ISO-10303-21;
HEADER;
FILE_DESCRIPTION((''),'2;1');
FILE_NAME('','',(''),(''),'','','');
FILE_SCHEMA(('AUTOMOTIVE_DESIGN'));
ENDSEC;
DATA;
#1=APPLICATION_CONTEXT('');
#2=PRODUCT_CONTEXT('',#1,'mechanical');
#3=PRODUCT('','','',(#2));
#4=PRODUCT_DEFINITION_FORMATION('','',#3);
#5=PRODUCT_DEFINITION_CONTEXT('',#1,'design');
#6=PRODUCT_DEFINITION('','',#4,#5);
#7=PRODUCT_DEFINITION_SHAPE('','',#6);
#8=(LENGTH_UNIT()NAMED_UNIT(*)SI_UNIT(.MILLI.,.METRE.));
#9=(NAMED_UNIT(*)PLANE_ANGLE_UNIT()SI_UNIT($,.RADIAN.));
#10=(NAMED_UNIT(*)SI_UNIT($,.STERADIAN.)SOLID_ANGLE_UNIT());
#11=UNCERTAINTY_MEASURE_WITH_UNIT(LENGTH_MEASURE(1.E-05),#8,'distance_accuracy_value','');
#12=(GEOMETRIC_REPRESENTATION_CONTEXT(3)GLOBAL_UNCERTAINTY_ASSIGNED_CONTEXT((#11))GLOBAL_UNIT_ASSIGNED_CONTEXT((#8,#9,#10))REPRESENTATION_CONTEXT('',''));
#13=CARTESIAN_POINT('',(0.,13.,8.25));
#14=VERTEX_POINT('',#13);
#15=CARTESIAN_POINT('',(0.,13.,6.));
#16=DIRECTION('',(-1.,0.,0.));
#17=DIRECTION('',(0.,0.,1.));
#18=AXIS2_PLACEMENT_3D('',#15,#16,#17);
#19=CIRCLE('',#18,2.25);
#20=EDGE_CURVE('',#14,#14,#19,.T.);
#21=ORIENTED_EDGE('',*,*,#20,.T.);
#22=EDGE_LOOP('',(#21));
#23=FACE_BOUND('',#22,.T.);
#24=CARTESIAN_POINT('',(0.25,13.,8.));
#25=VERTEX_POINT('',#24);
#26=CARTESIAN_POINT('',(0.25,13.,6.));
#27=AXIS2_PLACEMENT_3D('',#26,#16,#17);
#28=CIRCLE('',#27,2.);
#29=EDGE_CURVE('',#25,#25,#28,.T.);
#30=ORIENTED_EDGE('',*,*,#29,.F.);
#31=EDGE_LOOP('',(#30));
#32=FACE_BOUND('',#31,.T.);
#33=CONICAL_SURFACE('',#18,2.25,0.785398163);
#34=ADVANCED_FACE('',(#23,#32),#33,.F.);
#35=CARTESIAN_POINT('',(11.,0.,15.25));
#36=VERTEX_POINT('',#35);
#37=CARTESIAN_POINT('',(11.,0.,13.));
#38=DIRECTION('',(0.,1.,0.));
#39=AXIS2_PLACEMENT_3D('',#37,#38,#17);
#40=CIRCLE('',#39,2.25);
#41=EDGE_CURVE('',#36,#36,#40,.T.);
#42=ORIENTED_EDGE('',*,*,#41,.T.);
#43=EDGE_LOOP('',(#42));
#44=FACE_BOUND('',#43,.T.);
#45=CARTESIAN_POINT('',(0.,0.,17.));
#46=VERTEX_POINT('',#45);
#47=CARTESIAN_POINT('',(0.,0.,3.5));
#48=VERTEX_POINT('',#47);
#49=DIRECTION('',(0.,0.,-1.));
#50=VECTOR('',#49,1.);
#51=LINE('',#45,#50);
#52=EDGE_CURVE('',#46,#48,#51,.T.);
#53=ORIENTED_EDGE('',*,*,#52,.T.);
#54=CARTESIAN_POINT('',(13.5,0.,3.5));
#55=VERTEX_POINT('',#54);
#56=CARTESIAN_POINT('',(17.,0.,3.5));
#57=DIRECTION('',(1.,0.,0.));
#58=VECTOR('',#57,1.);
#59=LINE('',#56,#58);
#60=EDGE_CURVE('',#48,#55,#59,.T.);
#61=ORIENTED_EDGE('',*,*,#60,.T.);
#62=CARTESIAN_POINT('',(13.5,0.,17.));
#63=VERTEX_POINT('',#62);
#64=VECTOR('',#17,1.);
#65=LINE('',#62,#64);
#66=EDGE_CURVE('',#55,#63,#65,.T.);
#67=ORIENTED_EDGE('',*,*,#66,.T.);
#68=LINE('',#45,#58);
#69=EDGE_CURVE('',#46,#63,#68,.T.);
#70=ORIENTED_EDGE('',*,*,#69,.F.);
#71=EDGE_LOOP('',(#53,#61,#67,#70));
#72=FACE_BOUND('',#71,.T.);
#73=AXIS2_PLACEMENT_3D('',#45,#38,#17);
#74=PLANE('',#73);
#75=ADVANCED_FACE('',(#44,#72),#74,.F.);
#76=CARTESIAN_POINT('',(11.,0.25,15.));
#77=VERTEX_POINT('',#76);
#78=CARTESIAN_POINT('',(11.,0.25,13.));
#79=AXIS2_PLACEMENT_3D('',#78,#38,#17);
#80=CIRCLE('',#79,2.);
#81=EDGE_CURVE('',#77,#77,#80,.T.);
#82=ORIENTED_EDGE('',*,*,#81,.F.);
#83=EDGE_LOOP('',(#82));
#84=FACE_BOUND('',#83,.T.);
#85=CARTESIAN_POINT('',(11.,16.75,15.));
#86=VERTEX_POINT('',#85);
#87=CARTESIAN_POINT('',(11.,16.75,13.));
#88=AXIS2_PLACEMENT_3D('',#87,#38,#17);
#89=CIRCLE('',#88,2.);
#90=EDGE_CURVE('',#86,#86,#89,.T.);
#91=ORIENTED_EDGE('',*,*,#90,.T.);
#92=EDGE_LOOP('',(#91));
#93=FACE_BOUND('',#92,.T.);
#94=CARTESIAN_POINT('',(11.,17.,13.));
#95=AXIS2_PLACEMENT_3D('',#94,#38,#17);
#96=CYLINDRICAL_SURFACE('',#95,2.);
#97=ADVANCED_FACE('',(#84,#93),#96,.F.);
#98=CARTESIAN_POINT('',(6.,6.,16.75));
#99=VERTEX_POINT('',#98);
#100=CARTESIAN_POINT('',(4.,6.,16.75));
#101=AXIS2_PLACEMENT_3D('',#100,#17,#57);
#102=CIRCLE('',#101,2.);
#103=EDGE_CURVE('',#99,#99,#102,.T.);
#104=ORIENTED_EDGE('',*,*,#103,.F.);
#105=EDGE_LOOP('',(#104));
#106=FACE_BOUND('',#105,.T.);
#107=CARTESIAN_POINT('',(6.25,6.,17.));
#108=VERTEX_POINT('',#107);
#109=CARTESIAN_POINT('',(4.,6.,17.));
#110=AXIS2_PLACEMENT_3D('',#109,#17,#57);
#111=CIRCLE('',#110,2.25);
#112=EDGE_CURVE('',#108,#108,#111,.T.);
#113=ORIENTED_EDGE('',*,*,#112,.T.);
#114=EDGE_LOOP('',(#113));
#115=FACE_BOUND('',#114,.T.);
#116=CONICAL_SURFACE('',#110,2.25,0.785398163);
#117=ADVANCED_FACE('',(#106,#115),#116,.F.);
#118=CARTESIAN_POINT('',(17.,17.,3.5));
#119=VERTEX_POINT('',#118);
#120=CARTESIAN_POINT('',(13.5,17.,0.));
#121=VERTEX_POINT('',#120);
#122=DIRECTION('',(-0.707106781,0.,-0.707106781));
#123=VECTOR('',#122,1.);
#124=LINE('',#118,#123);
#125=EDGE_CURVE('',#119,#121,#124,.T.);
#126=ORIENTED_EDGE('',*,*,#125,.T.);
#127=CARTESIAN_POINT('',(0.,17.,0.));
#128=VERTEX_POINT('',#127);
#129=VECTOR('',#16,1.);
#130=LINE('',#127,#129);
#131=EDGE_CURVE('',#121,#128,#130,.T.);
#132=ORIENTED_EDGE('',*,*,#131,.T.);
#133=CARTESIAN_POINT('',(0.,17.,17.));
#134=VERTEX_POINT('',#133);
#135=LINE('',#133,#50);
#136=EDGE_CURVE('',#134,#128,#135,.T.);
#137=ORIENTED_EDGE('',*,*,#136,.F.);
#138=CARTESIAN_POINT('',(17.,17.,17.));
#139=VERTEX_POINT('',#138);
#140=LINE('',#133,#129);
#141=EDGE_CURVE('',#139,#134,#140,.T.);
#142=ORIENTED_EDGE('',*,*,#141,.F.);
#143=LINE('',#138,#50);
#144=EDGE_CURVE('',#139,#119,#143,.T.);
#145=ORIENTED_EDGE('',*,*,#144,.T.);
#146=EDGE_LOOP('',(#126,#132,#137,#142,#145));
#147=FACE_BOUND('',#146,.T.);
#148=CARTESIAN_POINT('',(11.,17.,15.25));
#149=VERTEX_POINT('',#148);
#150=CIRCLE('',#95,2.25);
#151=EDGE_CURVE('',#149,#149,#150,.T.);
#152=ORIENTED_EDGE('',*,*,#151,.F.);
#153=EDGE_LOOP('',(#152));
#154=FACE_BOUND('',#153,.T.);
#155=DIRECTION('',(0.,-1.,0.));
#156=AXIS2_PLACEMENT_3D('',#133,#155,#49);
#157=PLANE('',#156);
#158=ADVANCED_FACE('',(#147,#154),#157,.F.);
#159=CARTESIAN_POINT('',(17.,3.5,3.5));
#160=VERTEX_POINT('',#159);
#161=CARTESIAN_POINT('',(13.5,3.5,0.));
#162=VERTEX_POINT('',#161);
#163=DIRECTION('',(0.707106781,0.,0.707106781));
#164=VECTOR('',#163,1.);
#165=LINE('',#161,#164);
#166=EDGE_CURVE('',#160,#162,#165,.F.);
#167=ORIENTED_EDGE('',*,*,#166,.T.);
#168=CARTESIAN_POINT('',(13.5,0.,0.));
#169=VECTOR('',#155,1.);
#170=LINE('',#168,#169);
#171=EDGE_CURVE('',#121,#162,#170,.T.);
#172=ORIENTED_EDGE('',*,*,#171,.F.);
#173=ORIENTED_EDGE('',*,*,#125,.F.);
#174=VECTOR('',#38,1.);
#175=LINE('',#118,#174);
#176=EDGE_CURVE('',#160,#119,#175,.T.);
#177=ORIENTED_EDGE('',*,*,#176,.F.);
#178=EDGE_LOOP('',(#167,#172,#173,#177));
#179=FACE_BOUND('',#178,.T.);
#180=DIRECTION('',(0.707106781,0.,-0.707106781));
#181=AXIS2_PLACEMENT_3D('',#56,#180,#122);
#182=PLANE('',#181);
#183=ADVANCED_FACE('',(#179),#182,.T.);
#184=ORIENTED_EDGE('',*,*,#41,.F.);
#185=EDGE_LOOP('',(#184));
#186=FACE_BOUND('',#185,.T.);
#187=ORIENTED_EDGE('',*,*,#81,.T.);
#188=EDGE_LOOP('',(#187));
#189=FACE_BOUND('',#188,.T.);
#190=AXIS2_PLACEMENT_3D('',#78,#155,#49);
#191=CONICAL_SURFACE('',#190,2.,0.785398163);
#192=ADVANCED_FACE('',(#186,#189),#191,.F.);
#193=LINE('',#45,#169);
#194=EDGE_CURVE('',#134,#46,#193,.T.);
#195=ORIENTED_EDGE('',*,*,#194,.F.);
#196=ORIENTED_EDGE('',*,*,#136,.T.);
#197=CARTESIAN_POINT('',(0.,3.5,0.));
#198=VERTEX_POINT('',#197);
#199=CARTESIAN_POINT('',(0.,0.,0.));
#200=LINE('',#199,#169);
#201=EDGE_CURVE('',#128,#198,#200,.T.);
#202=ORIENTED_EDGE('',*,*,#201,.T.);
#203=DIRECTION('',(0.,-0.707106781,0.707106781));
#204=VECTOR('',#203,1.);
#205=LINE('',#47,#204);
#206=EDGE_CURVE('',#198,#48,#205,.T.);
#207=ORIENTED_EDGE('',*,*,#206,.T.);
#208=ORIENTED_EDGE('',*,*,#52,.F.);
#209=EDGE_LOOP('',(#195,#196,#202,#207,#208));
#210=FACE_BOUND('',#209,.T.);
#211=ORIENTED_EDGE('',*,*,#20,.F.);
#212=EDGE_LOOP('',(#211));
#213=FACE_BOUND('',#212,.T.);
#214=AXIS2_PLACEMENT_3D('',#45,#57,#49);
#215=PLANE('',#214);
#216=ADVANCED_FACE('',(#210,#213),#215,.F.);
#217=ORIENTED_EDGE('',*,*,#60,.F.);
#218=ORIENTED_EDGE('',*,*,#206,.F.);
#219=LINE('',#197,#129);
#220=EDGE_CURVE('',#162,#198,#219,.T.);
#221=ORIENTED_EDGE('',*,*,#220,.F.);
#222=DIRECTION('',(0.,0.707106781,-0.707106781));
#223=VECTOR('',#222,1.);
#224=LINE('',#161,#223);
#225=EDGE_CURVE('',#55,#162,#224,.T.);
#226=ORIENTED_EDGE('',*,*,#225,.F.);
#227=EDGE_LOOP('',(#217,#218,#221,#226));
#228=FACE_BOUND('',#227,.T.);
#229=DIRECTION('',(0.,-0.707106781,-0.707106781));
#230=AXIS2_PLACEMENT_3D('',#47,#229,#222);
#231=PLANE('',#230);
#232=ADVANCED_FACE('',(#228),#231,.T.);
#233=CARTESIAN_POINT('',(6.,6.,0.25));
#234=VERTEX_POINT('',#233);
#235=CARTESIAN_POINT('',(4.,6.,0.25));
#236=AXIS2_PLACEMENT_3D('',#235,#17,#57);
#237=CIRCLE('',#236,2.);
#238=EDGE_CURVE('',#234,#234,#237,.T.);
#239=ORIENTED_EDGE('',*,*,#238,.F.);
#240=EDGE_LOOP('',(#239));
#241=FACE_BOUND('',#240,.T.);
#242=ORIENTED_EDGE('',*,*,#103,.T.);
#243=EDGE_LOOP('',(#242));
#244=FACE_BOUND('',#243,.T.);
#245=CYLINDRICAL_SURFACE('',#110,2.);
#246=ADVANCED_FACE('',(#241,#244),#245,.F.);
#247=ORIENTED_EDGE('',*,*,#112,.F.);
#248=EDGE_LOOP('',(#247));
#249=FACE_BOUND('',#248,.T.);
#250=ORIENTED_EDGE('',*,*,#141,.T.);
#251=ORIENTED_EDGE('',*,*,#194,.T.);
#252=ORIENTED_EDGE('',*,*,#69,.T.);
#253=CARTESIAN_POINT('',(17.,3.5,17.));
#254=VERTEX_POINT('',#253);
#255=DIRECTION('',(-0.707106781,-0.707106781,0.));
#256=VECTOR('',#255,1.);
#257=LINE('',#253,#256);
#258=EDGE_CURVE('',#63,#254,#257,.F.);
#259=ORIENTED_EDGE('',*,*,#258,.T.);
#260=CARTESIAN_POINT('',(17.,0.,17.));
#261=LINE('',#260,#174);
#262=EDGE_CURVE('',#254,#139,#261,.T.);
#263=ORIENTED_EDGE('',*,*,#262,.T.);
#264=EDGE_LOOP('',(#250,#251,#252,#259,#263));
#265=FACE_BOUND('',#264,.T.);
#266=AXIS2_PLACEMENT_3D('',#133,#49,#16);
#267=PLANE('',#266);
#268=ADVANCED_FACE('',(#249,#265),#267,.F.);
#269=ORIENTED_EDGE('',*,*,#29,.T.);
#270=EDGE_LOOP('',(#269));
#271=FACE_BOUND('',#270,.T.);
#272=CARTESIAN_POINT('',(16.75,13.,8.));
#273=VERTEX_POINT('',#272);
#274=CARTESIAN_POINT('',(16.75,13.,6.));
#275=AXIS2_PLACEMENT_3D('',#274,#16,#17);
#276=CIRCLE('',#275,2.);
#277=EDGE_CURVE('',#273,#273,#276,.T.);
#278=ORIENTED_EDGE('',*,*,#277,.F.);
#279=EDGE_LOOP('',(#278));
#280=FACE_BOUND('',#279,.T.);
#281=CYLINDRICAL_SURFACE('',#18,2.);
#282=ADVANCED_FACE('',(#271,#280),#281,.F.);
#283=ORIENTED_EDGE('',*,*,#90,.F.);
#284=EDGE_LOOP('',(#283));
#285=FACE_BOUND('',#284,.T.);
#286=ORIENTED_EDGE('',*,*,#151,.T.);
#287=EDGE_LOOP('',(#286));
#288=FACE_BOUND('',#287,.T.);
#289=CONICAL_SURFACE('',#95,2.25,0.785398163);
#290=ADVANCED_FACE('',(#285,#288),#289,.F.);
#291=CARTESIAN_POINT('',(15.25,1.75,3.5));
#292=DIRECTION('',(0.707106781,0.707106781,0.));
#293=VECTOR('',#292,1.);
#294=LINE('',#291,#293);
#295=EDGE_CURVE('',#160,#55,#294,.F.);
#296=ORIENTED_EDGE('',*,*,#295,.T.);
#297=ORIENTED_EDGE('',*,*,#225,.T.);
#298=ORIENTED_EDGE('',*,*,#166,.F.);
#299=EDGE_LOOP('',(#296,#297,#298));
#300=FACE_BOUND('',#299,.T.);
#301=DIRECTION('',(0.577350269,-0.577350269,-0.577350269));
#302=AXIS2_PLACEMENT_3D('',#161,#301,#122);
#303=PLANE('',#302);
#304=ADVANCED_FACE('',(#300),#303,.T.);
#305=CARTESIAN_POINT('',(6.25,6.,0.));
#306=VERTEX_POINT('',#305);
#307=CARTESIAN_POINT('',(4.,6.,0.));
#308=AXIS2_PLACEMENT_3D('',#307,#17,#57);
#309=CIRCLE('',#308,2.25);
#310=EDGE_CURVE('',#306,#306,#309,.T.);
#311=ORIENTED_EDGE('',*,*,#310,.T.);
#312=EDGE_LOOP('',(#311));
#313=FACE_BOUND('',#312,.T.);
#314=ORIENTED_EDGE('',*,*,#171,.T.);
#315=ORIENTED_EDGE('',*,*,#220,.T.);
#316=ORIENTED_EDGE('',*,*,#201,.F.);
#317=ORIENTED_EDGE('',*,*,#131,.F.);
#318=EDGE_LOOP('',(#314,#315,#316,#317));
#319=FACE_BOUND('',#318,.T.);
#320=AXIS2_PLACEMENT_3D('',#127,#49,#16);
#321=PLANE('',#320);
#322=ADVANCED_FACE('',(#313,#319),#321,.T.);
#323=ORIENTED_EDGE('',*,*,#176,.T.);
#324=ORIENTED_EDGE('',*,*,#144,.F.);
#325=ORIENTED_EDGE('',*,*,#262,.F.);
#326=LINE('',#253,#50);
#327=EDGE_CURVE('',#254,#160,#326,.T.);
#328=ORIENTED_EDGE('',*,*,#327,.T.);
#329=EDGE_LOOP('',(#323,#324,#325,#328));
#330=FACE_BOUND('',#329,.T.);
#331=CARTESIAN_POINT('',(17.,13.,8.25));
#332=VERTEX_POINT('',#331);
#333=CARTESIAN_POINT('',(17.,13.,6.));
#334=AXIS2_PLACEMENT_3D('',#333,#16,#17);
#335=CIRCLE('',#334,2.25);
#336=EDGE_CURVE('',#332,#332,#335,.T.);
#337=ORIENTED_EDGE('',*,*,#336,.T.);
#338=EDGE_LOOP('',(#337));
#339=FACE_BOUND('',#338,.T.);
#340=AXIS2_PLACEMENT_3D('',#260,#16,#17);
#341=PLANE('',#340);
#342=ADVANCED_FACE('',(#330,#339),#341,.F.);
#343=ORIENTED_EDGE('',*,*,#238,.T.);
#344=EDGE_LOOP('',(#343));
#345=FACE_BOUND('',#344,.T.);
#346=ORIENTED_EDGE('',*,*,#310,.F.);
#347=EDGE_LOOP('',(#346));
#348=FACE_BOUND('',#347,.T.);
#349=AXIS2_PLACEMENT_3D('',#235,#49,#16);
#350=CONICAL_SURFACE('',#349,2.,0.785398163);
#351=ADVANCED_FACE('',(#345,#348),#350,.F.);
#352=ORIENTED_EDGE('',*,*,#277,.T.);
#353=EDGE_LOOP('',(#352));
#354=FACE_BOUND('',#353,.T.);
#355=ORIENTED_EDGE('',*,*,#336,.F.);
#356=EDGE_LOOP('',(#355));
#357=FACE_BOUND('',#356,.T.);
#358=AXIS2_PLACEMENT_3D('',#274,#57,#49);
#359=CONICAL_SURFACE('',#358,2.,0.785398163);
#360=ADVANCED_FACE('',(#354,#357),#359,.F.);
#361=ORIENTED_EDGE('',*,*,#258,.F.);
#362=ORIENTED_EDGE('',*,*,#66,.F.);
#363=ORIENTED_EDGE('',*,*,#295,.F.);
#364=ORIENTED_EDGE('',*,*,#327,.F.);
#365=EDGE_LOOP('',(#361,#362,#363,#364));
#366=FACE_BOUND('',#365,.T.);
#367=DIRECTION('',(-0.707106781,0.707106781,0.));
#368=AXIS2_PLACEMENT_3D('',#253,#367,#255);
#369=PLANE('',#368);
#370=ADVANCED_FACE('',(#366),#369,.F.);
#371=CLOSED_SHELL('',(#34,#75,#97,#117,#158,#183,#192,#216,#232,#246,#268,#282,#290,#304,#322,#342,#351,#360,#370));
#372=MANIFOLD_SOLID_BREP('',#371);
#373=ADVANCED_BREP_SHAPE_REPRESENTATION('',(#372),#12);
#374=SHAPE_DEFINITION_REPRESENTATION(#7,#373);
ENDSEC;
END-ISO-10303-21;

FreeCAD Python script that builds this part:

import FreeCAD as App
import Part
import Sketcher

V = App.Vector
Q = App.Units.Quantity


def edges_at(feature, points):
    """Names of the edges that pass closest to the given points."""
    edges = feature.Shape.Edges
    near = lambda p: min(range(len(edges)), key=lambda i: edges[i].distToShape(Part.Vertex(*p))[0])
    return sorted({f"Edge{near(p) + 1}" for p in points})


def add_polygon(sketch, points):
    """Adds a closed chain of lines whose ends are joined by coincident constraints."""
    first, n = sketch.GeometryCount, len(points)
    for a, b in zip(points, points[1:] + points[:1]):
        sketch.addGeometry(Part.LineSegment(App.Vector(*a, 0), App.Vector(*b, 0)), False)
    for i in range(n):
        sketch.addConstraint(Sketcher.Constraint("Coincident", first + i, 2, first + (i + 1) % n, 1))

doc = App.newDocument("Part")
body = doc.addObject("PartDesign::Body", "Body")

sketch1 = body.newObject("Sketcher::SketchObject", "Sketch")
sketch1.AttachmentSupport = (doc.getObject("XY_Plane"), [""])
sketch1.MapMode = "FlatFace"
add_polygon(sketch1, [(0, 17), (0, 0), (17, 0), (17, 17)])
sketch1.addConstraint([
    Sketcher.Constraint("Vertical", 0),
    Sketcher.Constraint("Horizontal", 1),
    Sketcher.Constraint("Vertical", 2),
    Sketcher.Constraint("Horizontal", 3),
    Sketcher.Constraint("Coincident", 0, 2, -1, 1),
    Sketcher.Constraint("Equal", 3, 0),
    Sketcher.Constraint("DistanceX", 1, 1, 1, 2, Q("17 mm")),
])
pad1 = body.newObject("PartDesign::Pad", "Pad")
pad1.Profile = sketch1
pad1.Length = 17

sketch2 = body.newObject("Sketcher::SketchObject", "Sketch001")
sketch2.AttachmentSupport = (doc.getObject("YZ_Plane"), [""])
sketch2.MapMode = "FlatFace"
sketch2.AttachmentOffset = App.Placement(V(0, 0, 11), App.Rotation())
add_polygon(sketch2, [(0, 13), (17, 13), (17, 15.25), (16.75, 15), (0.25, 15), (0, 15.25)])
sketch2.addGeometry(Part.LineSegment(V(17, 13, 0), V(0, 13, 0)), True)
sketch2.addConstraint([
    Sketcher.Constraint("Horizontal", 0),
    Sketcher.Constraint("Vertical", 1),
    Sketcher.Constraint("Horizontal", 3),
    Sketcher.Constraint("Vertical", 5),
    Sketcher.Constraint("Horizontal", 6),
    Sketcher.Constraint("Coincident", 6, 1, 0, 2),
    Sketcher.Constraint("PointOnObject", 4, 2, -2),
    Sketcher.Constraint("PointOnObject", 6, 2, -2),
    Sketcher.Constraint("Perpendicular", 2, 4),
    Sketcher.Constraint("Horizontal", 1, 2, 4, 2),
    Sketcher.Constraint("Equal", 2, 4),
    Sketcher.Constraint("DistanceX", 0, 1, 0, 2, Q("17 mm")),
    Sketcher.Constraint("DistanceX", 3, 2, 3, 1, Q("16.5 mm")),
    Sketcher.Constraint("DistanceY", -1, 1, 0, 2, Q("13 mm")),
    Sketcher.Constraint("DistanceY", -1, 1, 2, 2, Q("15 mm")),
])
groove = body.newObject("PartDesign::Groove", "Groove")
groove.Profile = sketch2
groove.ReferenceAxis = (sketch2, ["Axis0"])
groove.Angle = 360

sketch3 = body.newObject("Sketcher::SketchObject", "Sketch002")
sketch3.AttachmentSupport = (doc.getObject("YZ_Plane"), [""])
sketch3.MapMode = "FlatFace"
sketch3.AttachmentOffset = App.Placement(V(0, 0, 4), App.Rotation())
add_polygon(sketch3, [(6, 0), (6, 17), (3.75, 17), (4, 16.75), (4, 0.25), (3.75, 0)])
sketch3.addGeometry(Part.LineSegment(V(6, 17, 0), V(6, 0, 0)), True)
sketch3.addConstraint([
    Sketcher.Constraint("Vertical", 0),
    Sketcher.Constraint("Horizontal", 1),
    Sketcher.Constraint("Vertical", 3),
    Sketcher.Constraint("Horizontal", 5),
    Sketcher.Constraint("Vertical", 6),
    Sketcher.Constraint("Coincident", 6, 1, 0, 2),
    Sketcher.Constraint("PointOnObject", 4, 2, -1),
    Sketcher.Constraint("PointOnObject", 6, 2, -1),
    Sketcher.Constraint("Perpendicular", 2, 4),
    Sketcher.Constraint("Vertical", 1, 2, 4, 2),
    Sketcher.Constraint("Equal", 2, 4),
    Sketcher.Constraint("DistanceY", 0, 1, 0, 2, Q("17 mm")),
    Sketcher.Constraint("DistanceY", 3, 2, 3, 1, Q("16.5 mm")),
    Sketcher.Constraint("DistanceX", -1, 1, 0, 2, Q("6 mm")),
    Sketcher.Constraint("DistanceX", -1, 1, 2, 2, Q("4 mm")),
])
groove2 = body.newObject("PartDesign::Groove", "Groove001")
groove2.Profile = sketch3
groove2.ReferenceAxis = (sketch3, ["Axis0"])
groove2.Angle = 360

sketch4 = body.newObject("Sketcher::SketchObject", "Sketch003")
sketch4.AttachmentSupport = (doc.getObject("XZ_Plane"), [""])
sketch4.MapMode = "FlatFace"
sketch4.AttachmentOffset = App.Placement(V(0, 0, -13), App.Rotation())
add_polygon(sketch4, [(17, 6), (0, 6), (0, 8.25), (0.25, 8), (16.75, 8), (17, 8.25)])
sketch4.addGeometry(Part.LineSegment(V(0, 6, 0), V(17, 6, 0)), True)
sketch4.addConstraint([
    Sketcher.Constraint("Horizontal", 0),
    Sketcher.Constraint("Vertical", 1),
    Sketcher.Constraint("Horizontal", 3),
    Sketcher.Constraint("Vertical", 5),
    Sketcher.Constraint("Horizontal", 6),
    Sketcher.Constraint("Coincident", 6, 1, 0, 2),
    Sketcher.Constraint("PointOnObject", 0, 2, -2),
    Sketcher.Constraint("Perpendicular", 2, 4),
    Sketcher.Constraint("Horizontal", 1, 2, 4, 2),
    Sketcher.Constraint("Vertical", 4, 2, 6, 2),
    Sketcher.Constraint("Equal", 2, 4),
    Sketcher.Constraint("DistanceX", 0, 2, 0, 1, Q("17 mm")),
    Sketcher.Constraint("DistanceX", 3, 1, 3, 2, Q("16.5 mm")),
    Sketcher.Constraint("DistanceY", -1, 1, 0, 2, Q("6 mm")),
    Sketcher.Constraint("DistanceY", -1, 1, 2, 2, Q("8 mm")),
])
groove3 = body.newObject("PartDesign::Groove", "Groove002")
groove3.Profile = sketch4
groove3.ReferenceAxis = (sketch4, ["Axis0"])
groove3.Angle = 360
doc.recompute()

chamfer = body.newObject("PartDesign::Chamfer", "Chamfer")
chamfer.Base = (groove3, edges_at(groove3, [(17, 8.5, 0), (8.5, 0, 0), (17, 0, 8.5)]))
chamfer.Size = 3.5

doc.recompute()
